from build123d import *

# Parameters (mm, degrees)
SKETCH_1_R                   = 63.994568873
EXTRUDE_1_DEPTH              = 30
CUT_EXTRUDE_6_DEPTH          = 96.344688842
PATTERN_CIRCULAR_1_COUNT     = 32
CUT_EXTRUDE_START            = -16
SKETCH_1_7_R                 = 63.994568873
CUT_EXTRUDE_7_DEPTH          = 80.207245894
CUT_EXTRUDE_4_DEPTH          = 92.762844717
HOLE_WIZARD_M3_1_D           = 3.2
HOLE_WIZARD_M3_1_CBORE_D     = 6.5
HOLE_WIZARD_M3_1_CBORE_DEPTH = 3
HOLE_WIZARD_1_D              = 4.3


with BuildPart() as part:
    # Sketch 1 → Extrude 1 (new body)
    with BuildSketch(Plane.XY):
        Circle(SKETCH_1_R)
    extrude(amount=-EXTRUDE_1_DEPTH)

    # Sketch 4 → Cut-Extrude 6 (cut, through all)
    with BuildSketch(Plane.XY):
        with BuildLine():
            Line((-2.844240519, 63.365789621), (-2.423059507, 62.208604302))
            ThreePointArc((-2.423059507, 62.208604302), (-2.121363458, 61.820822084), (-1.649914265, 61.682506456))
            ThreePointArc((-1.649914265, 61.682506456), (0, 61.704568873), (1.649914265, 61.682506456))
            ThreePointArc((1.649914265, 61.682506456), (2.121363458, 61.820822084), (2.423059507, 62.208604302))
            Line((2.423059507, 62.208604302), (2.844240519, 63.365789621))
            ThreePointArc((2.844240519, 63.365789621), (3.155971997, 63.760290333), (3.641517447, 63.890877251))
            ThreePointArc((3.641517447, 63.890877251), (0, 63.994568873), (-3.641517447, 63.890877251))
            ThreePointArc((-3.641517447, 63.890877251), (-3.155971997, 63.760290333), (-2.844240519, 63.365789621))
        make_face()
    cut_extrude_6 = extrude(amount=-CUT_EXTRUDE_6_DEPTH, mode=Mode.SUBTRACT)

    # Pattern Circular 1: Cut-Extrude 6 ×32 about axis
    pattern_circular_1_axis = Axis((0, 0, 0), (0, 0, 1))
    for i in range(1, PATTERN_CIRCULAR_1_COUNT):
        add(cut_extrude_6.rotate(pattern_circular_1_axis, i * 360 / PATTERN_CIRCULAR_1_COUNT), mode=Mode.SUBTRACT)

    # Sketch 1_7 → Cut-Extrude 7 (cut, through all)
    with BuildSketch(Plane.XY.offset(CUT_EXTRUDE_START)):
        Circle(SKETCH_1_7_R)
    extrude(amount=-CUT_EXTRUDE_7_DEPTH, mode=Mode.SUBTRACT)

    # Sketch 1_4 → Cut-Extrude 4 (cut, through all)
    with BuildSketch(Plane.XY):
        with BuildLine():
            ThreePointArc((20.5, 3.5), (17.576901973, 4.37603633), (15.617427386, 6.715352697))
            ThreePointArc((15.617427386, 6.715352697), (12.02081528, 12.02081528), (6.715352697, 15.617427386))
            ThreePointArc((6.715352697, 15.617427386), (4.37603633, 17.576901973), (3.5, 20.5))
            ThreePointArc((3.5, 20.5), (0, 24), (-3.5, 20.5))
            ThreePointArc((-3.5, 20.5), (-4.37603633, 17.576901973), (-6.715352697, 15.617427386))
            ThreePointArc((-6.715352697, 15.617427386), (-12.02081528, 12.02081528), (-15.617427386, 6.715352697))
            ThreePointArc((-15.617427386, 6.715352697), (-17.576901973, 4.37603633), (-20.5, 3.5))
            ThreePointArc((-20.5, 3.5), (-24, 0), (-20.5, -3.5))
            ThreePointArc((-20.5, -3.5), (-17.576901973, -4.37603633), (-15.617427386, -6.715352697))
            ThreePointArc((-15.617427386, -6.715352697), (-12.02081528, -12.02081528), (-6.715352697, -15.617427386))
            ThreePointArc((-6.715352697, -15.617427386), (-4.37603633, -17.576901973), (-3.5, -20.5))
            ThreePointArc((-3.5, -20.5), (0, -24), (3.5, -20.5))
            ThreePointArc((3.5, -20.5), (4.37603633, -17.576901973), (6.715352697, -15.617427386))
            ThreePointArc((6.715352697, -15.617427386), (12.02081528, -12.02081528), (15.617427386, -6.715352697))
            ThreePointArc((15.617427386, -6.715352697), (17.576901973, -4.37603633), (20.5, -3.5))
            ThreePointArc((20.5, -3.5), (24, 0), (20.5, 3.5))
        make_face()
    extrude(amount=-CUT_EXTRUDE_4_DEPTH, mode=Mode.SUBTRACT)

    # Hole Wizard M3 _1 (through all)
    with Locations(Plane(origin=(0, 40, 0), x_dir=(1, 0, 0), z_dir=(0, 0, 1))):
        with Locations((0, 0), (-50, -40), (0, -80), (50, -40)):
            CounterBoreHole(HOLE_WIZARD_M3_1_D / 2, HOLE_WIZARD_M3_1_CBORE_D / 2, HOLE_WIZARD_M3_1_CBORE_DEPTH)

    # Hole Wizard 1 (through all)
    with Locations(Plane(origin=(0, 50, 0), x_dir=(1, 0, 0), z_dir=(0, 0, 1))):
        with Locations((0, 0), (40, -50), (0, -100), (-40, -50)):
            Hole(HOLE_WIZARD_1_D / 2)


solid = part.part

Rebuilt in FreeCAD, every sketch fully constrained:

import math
import FreeCAD as App
import Part
import Sketcher

V = App.Vector
Q = App.Units.Quantity

doc = App.newDocument("Part")
body = doc.addObject("PartDesign::Body", "Body")

# Sketch on XY plane
sketch1 = body.newObject("Sketcher::SketchObject", "Sketch")
sketch1.AttachmentSupport = (doc.getObject("XY_Plane"), [""])
sketch1.MapMode = "FlatFace"
sketch1.addGeometry(Part.Circle(V(0, 0, 0), V(0, 0, 1), 63.994569), False)
sketch1.addConstraint([
    Sketcher.Constraint("Coincident", 0, 3, -1, 1),
    Sketcher.Constraint("Diameter", 0, 127.989138),
])
pad1 = body.newObject("PartDesign::Pad", "Pad")
pad1.Profile = sketch1
pad1.Length = 30
pad1.Reversed = True

# Sketch on XY plane
sketch2 = body.newObject("Sketcher::SketchObject", "Sketch001")
sketch2.AttachmentSupport = (doc.getObject("XY_Plane"), [""])
sketch2.MapMode = "FlatFace"
sketch2.addGeometry([
    Part.LineSegment(V(-2.844241, 63.36579, 0), V(-2.42306, 62.208604, 0)),  # 0
    Part.ArcOfCircle(Part.Circle(V(-1.671305, 62.48222, 0), V(0, 0, 1), 0.8), math.radians(-160), math.radians(-88.467789)),  # 1
    Part.ArcOfCircle(Part.Circle(V(0, 0.000001, 0), V(0, 0, 1), 61.704568), math.radians(88.467789), math.radians(91.532211)),  # 2
    Part.ArcOfCircle(Part.Circle(V(1.671305, 62.48222, 0), V(0, 0, 1), 0.8), math.radians(-91.532211), math.radians(-20)),  # 3
    Part.LineSegment(V(2.42306, 62.208604, 0), V(2.844241, 63.36579, 0)),  # 4
    Part.ArcOfCircle(Part.Circle(V(3.595995, 63.092174, 0), V(0, 0, 1), 0.8), math.radians(86.737905), math.radians(160)),  # 5
    Part.ArcOfCircle(Part.Circle(V(0, 0, 0), V(0, 0, 1), 63.994569), math.radians(86.737905), math.radians(93.262095)),  # 6
    Part.ArcOfCircle(Part.Circle(V(-3.595995, 63.092174, 0), V(0, 0, 1), 0.8), math.radians(20), math.radians(93.262095)),  # 7
], False)
sketch2.addConstraint([
    Sketcher.Constraint("Tangent", 0, 2, 1, 1),
    Sketcher.Constraint("Tangent", 1, 2, 2, 2),
    Sketcher.Constraint("Tangent", 2, 1, 3, 1),
    Sketcher.Constraint("Tangent", 3, 2, 4, 1),
    Sketcher.Constraint("Tangent", 4, 2, 5, 2),
    Sketcher.Constraint("Tangent", 5, 1, 6, 1),
    Sketcher.Constraint("Tangent", 6, 2, 7, 2),
    Sketcher.Constraint("Tangent", 7, 1, 0, 1),
    Sketcher.Constraint("Coincident", 2, 3, -1, 1),
    Sketcher.Constraint("Coincident", 6, 3, -1, 1),
    Sketcher.Constraint("Equal", 1, 3),
    Sketcher.Constraint("Equal", 3, 5),
    Sketcher.Constraint("Equal", 5, 7),
    Sketcher.Constraint("Symmetric", 0, 2, 3, 2, -2),
    Sketcher.Constraint("Radius", 1, 0.8),
    Sketcher.Constraint("Angle", 0, Q("-70 deg")),
    Sketcher.Constraint("Radius", 2, 61.704568),
    Sketcher.Constraint("Radius", 6, 63.994569),
    Sketcher.Constraint("DistanceX", 1, 3, 5, 3, 5.2673),
])
pocket1 = body.newObject("PartDesign::Pocket", "Pocket")
pocket1.Profile = sketch2
pocket1.Type = "ThroughAll"
doc.recompute()

polarpattern = body.newObject("PartDesign::PolarPattern", "PolarPattern")
polarpattern.Originals = [pocket1]
polarpattern.Axis = (doc.getObject("Z_Axis"), [""])
polarpattern.Angle = 360
polarpattern.Occurrences = 32
body.Tip = polarpattern

# Sketch on XY plane
sketch3 = body.newObject("Sketcher::SketchObject", "Sketch002")
sketch3.AttachmentSupport = (doc.getObject("XY_Plane"), [""])
sketch3.MapMode = "FlatFace"
sketch3.AttachmentOffset = App.Placement(V(0, 0, -16), App.Rotation())
sketch3.addGeometry(Part.Circle(V(0, 0, 0), V(0, 0, 1), 63.994569), False)
sketch3.addConstraint([
    Sketcher.Constraint("Coincident", 0, 3, -1, 1),
    Sketcher.Constraint("Diameter", 0, 127.989138),
])
pocket2 = body.newObject("PartDesign::Pocket", "Pocket001")
pocket2.Profile = sketch3
pocket2.Type = "ThroughAll"

# Sketch on XY plane
sketch4 = body.newObject("Sketcher::SketchObject", "Sketch003")
sketch4.AttachmentSupport = (doc.getObject("XY_Plane"), [""])
sketch4.MapMode = "FlatFace"
sketch4.addGeometry([
    Part.ArcOfCircle(Part.Circle(V(20.5, 8.814815, 0), V(0, 0, 1), 5.314815), math.radians(-156.732732), math.radians(-90)),  # 0
    Part.ArcOfCircle(Part.Circle(V(0, 0, 0), V(0, 0, 1), 17), math.radians(23.267268), math.radians(66.732732)),  # 1
    Part.ArcOfCircle(Part.Circle(V(8.814815, 20.5, 0), V(0, 0, 1), 5.314815), math.radians(-180), math.radians(-113.267268)),  # 2
    Part.ArcOfCircle(Part.Circle(V(0, 20.5, 0), V(0, 0, 1), 3.5), math.radians(0), math.radians(180)),  # 3
    Part.ArcOfCircle(Part.Circle(V(-8.814815, 20.5, 0), V(0, 0, 1), 5.314815), math.radians(-66.732732), math.radians(0)),  # 4
    Part.ArcOfCircle(Part.Circle(V(0, 0, 0), V(0, 0, 1), 17), math.radians(113.267268), math.radians(156.732732)),  # 5
    Part.ArcOfCircle(Part.Circle(V(-20.5, 8.814815, 0), V(0, 0, 1), 5.314815), math.radians(-90), math.radians(-23.267268)),  # 6
    Part.ArcOfCircle(Part.Circle(V(-20.5, 0, 0), V(0, 0, 1), 3.5), math.radians(90), math.radians(270)),  # 7
    Part.ArcOfCircle(Part.Circle(V(-20.5, -8.814815, 0), V(0, 0, 1), 5.314815), math.radians(23.267268), math.radians(90)),  # 8
    Part.ArcOfCircle(Part.Circle(V(0, 0, 0), V(0, 0, 1), 17), math.radians(-156.732732), math.radians(-113.267268)),  # 9
    Part.ArcOfCircle(Part.Circle(V(-8.814815, -20.5, 0), V(0, 0, 1), 5.314815), math.radians(0), math.radians(66.732732)),  # 10
    Part.ArcOfCircle(Part.Circle(V(0, -20.5, 0), V(0, 0, 1), 3.5), math.radians(180), math.radians(360)),  # 11
    Part.ArcOfCircle(Part.Circle(V(8.814815, -20.5, 0), V(0, 0, 1), 5.314815), math.radians(113.267268), math.radians(180)),  # 12
    Part.ArcOfCircle(Part.Circle(V(0, 0, 0), V(0, 0, 1), 17), math.radians(-66.732732), math.radians(-23.267268)),  # 13
    Part.ArcOfCircle(Part.Circle(V(20.5, -8.814815, 0), V(0, 0, 1), 5.314815), math.radians(90), math.radians(156.732732)),  # 14
    Part.ArcOfCircle(Part.Circle(V(20.5, 0, 0), V(0, 0, 1), 3.5), math.radians(-90), math.radians(90)),  # 15
], False)
sketch4.addConstraint([
    Sketcher.Constraint("Tangent", 0, 1, 1, 1),
    Sketcher.Constraint("Tangent", 1, 2, 2, 2),
    Sketcher.Constraint("Tangent", 2, 1, 3, 1),
    Sketcher.Constraint("Tangent", 3, 2, 4, 2),
    Sketcher.Constraint("Tangent", 4, 1, 5, 1),
    Sketcher.Constraint("Tangent", 5, 2, 6, 2),
    Sketcher.Constraint("Tangent", 6, 1, 7, 1),
    Sketcher.Constraint("Tangent", 7, 2, 8, 2),
    Sketcher.Constraint("Tangent", 8, 1, 9, 1),
    Sketcher.Constraint("Tangent", 9, 2, 10, 2),
    Sketcher.Constraint("Tangent", 10, 1, 11, 1),
    Sketcher.Constraint("Tangent", 11, 2, 12, 2),
    Sketcher.Constraint("Tangent", 12, 1, 13, 1),
    Sketcher.Constraint("Tangent", 13, 2, 14, 2),
    Sketcher.Constraint("Tangent", 14, 1, 15, 1),
    Sketcher.Constraint("Tangent", 15, 2, 0, 2),
    Sketcher.Constraint("Coincident", 1, 3, -1, 1),
    Sketcher.Constraint("Coincident", 5, 3, -1, 1),
    Sketcher.Constraint("Coincident", 9, 3, -1, 1),
    Sketcher.Constraint("Coincident", 13, 3, -1, 1),
    Sketcher.Constraint("Equal", 0, 2),
    Sketcher.Constraint("Equal", 2, 4),
    Sketcher.Constraint("Equal", 1, 5),
    Sketcher.Constraint("Equal", 4, 6),
    Sketcher.Constraint("Equal", 3, 7),
    Sketcher.Constraint("Equal", 6, 8),
    Sketcher.Constraint("Equal", 5, 9),
    Sketcher.Constraint("Equal", 8, 10),
    Sketcher.Constraint("Equal", 7, 11),
    Sketcher.Constraint("Equal", 10, 12),
    Sketcher.Constraint("Equal", 9, 13),
    Sketcher.Constraint("Equal", 12, 14),
    Sketcher.Constraint("Equal", 11, 15),
    Sketcher.Constraint("Symmetric", 3, 3, 11, 3, -1, 1),
    Sketcher.Constraint("Symmetric", 7, 3, 15, 3, -1, 1),
    Sketcher.Constraint("PointOnObject", 3, 3, -2),
    Sketcher.Constraint("PointOnObject", 7, 3, -1),
    Sketcher.Constraint("Horizontal", 2, 3, 3, 3),
    Sketcher.Constraint("Vertical", 6, 3, 7, 3),
    Sketcher.Constraint("Radius", 1, 17.0),
    Sketcher.Constraint("Radius", 3, 3.5),
    Sketcher.Constraint("DistanceX", -1, 1, 0, 3, 20.5),
])
pocket3 = body.newObject("PartDesign::Pocket", "Pocket002")
pocket3.Profile = sketch4
pocket3.Type = "ThroughAll"

# Sketch on XY plane
sketch5 = body.newObject("Sketcher::SketchObject", "Sketch004")
sketch5.AttachmentSupport = (doc.getObject("XY_Plane"), [""])
sketch5.MapMode = "FlatFace"
sketch5.addGeometry([
    Part.Circle(V(0, 40, 0), V(0, 0, 1), 1.6),
    Part.Circle(V(-50, 0, 0), V(0, 0, 1), 1.6),
    Part.Circle(V(0, -40, 0), V(0, 0, 1), 1.6),
    Part.Circle(V(50, 0, 0), V(0, 0, 1), 1.6),
], False)
sketch5.addConstraint([
    Sketcher.Constraint("Equal", 0, 1),
    Sketcher.Constraint("Equal", 1, 2),
    Sketcher.Constraint("Equal", 2, 3),
    Sketcher.Constraint("Symmetric", 0, 3, 2, 3, -1, 1),
    Sketcher.Constraint("Symmetric", 1, 3, 3, 3, -1, 1),
    Sketcher.Constraint("PointOnObject", 0, 3, -2),
    Sketcher.Constraint("PointOnObject", 1, 3, -1),
    Sketcher.Constraint("Diameter", 0, 3.2),
    Sketcher.Constraint("DistanceY", -1, 1, 0, 3, 40.0),
    Sketcher.Constraint("DistanceX", 1, 3, -1, 1, 50.0),
])
doc.recompute()
hole = body.newObject("PartDesign::Hole", "Hole")
hole.Profile = sketch5
hole.ThreadType = "None"
hole.Diameter = 3.2
hole.DepthType = "ThroughAll"
hole.HoleCutType = "Counterbore"
hole.HoleCutDiameter = 6.5
hole.HoleCutDepth = 3

# Sketch on XY plane
sketch6 = body.newObject("Sketcher::SketchObject", "Sketch005")
sketch6.AttachmentSupport = (doc.getObject("XY_Plane"), [""])
sketch6.MapMode = "FlatFace"
sketch6.addGeometry([
    Part.Circle(V(0, 50, 0), V(0, 0, 1), 2.15),
    Part.Circle(V(40, 0, 0), V(0, 0, 1), 2.15),
    Part.Circle(V(0, -50, 0), V(0, 0, 1), 2.15),
    Part.Circle(V(-40, 0, 0), V(0, 0, 1), 2.15),
], False)
sketch6.addConstraint([
    Sketcher.Constraint("Equal", 0, 1),
    Sketcher.Constraint("Equal", 1, 2),
    Sketcher.Constraint("Equal", 2, 3),
    Sketcher.Constraint("Symmetric", 0, 3, 2, 3, -1, 1),
    Sketcher.Constraint("Symmetric", 1, 3, 3, 3, -1, 1),
    Sketcher.Constraint("PointOnObject", 0, 3, -2),
    Sketcher.Constraint("PointOnObject", 1, 3, -1),
    Sketcher.Constraint("Diameter", 0, 4.3),
    Sketcher.Constraint("DistanceY", -1, 1, 0, 3, 50.0),
    Sketcher.Constraint("DistanceX", -1, 1, 1, 3, 40.0),
])
doc.recompute()
hole2 = body.newObject("PartDesign::Hole", "Hole001")
hole2.Profile = sketch6
hole2.ThreadType = "None"
hole2.Diameter = 4.3
hole2.DepthType = "ThroughAll"

doc.recompute()
